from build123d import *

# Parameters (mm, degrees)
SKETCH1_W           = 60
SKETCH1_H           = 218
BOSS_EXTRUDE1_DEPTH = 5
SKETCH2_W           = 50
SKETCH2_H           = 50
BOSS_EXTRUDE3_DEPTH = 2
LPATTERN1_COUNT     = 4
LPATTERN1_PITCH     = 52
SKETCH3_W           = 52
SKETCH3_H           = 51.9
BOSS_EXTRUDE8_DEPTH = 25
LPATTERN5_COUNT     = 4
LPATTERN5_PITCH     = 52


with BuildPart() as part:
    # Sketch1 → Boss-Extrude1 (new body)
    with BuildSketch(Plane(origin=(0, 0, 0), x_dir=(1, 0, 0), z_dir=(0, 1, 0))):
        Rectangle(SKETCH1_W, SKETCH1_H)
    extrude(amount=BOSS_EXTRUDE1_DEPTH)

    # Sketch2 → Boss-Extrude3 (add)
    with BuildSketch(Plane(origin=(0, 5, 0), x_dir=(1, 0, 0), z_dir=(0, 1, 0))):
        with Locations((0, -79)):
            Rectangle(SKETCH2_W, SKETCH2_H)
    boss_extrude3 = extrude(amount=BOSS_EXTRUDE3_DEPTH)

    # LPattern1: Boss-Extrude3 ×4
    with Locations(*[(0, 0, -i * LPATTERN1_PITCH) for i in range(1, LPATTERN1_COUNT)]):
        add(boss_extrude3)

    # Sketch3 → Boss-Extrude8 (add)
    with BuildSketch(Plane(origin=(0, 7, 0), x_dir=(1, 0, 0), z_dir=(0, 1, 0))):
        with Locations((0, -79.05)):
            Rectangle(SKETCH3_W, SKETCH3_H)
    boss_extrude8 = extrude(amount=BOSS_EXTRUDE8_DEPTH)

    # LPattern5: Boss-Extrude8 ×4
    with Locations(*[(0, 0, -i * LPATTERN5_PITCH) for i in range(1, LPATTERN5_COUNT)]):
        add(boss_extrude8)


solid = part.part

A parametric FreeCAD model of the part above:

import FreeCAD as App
import Part
import Sketcher
from FreeCAD import Vector

doc = App.newDocument("Part")
body = doc.addObject("PartDesign::Body", "Body")

sketch1 = doc.addObject("Sketcher::SketchObject", "Sketch")
body.addObject(sketch1)
sketch1.AttachmentSupport = (doc.XZ_Plane, [""])
sketch1.MapMode = "FlatFace"
sketch1.addGeometry(Part.LineSegment(Vector(-30, -109, 0), Vector(-30, 109, 0)), False)
sketch1.addGeometry(Part.LineSegment(Vector(-30, 109, 0), Vector(30, 109, 0)), False)
sketch1.addGeometry(Part.LineSegment(Vector(30, 109, 0), Vector(30, -109, 0)), False)
sketch1.addGeometry(Part.LineSegment(Vector(30, -109, 0), Vector(-30, -109, 0)), False)
sketch1.addConstraint(Sketcher.Constraint("Coincident", 0, 2, 1, 1))
sketch1.addConstraint(Sketcher.Constraint("Coincident", 1, 2, 2, 1))
sketch1.addConstraint(Sketcher.Constraint("Coincident", 2, 2, 3, 1))
sketch1.addConstraint(Sketcher.Constraint("Coincident", 3, 2, 0, 1))
sketch1.addConstraint(Sketcher.Constraint("Vertical", 0))
sketch1.addConstraint(Sketcher.Constraint("Horizontal", 1))
sketch1.addConstraint(Sketcher.Constraint("Vertical", 2))
sketch1.addConstraint(Sketcher.Constraint("Horizontal", 3))
sketch1.addConstraint(Sketcher.Constraint("Symmetric", 0, 2, 2, 2, -1, 1))
sketch1.addConstraint(Sketcher.Constraint("DistanceX", 1, 1, 1, 2, 60.0))
sketch1.addConstraint(Sketcher.Constraint("DistanceY", 0, 1, 0, 2, 218.0))
pad1 = doc.addObject("PartDesign::Pad", "Pad")
body.addObject(pad1)
pad1.Profile = sketch1
pad1.Length = 5
pad1.Reversed = True

sketch2 = doc.addObject("Sketcher::SketchObject", "Sketch001")
body.addObject(sketch2)
sketch2.AttachmentSupport = (doc.XZ_Plane, [""])
sketch2.MapMode = "FlatFace"
sketch2.AttachmentOffset = App.Placement(Vector(0, 0, -5), App.Rotation())
sketch2.addGeometry(Part.LineSegment(Vector(-25, 54, 0), Vector(-25, 104, 0)), False)
sketch2.addGeometry(Part.LineSegment(Vector(-25, 104, 0), Vector(25, 104, 0)), False)
sketch2.addGeometry(Part.LineSegment(Vector(25, 104, 0), Vector(25, 54, 0)), False)
sketch2.addGeometry(Part.LineSegment(Vector(25, 54, 0), Vector(-25, 54, 0)), False)
sketch2.addConstraint(Sketcher.Constraint("Coincident", 0, 2, 1, 1))
sketch2.addConstraint(Sketcher.Constraint("Coincident", 1, 2, 2, 1))
sketch2.addConstraint(Sketcher.Constraint("Coincident", 2, 2, 3, 1))
sketch2.addConstraint(Sketcher.Constraint("Coincident", 3, 2, 0, 1))
sketch2.addConstraint(Sketcher.Constraint("Vertical", 0))
sketch2.addConstraint(Sketcher.Constraint("Horizontal", 1))
sketch2.addConstraint(Sketcher.Constraint("Vertical", 2))
sketch2.addConstraint(Sketcher.Constraint("Horizontal", 3))
sketch2.addConstraint(Sketcher.Constraint("Equal", 3, 0))
sketch2.addConstraint(Sketcher.Constraint("DistanceX", 1, 1, 1, 2, 50.0))
sketch2.addConstraint(Sketcher.Constraint("DistanceX", 0, 2, -1, 1, 25.0))
sketch2.addConstraint(Sketcher.Constraint("DistanceY", -1, 1, 0, 2, 104.0))
pad2 = doc.addObject("PartDesign::Pad", "Pad001")
body.addObject(pad2)
pad2.Profile = sketch2
pad2.Length = 2
pad2.Reversed = True
doc.recompute()

linearpattern = doc.addObject("PartDesign::LinearPattern", "LinearPattern")
body.addObject(linearpattern)
linearpattern.Originals = [pad2]
linearpattern.Direction = (doc.Z_Axis, [""])
linearpattern.Mode = "offset"
linearpattern.Offset = 52
linearpattern.Occurrences = 4
linearpattern.Reversed = True
body.Tip = linearpattern

sketch3 = doc.addObject("Sketcher::SketchObject", "Sketch002")
body.addObject(sketch3)
sketch3.AttachmentSupport = (doc.XZ_Plane, [""])
sketch3.MapMode = "FlatFace"
sketch3.AttachmentOffset = App.Placement(Vector(0, 0, -7), App.Rotation())
sketch3.addGeometry(Part.LineSegment(Vector(-26, 53, 0), Vector(-26, 105, 0)), False)
sketch3.addGeometry(Part.LineSegment(Vector(-26, 105, 0), Vector(26, 105, 0)), False)
sketch3.addGeometry(Part.LineSegment(Vector(26, 105, 0), Vector(26, 53, 0)), False)
sketch3.addGeometry(Part.LineSegment(Vector(26, 53, 0), Vector(-26, 53, 0)), False)
sketch3.addConstraint(Sketcher.Constraint("Coincident", 0, 2, 1, 1))
sketch3.addConstraint(Sketcher.Constraint("Coincident", 1, 2, 2, 1))
sketch3.addConstraint(Sketcher.Constraint("Coincident", 2, 2, 3, 1))
sketch3.addConstraint(Sketcher.Constraint("Coincident", 3, 2, 0, 1))
sketch3.addConstraint(Sketcher.Constraint("Vertical", 0))
sketch3.addConstraint(Sketcher.Constraint("Horizontal", 1))
sketch3.addConstraint(Sketcher.Constraint("Vertical", 2))
sketch3.addConstraint(Sketcher.Constraint("Horizontal", 3))
sketch3.addConstraint(Sketcher.Constraint("DistanceX", 1, 1, 1, 2, 52.0))
sketch3.addConstraint(Sketcher.Constraint("DistanceY", 0, 1, 0, 2, 51.9))
sketch3.addConstraint(Sketcher.Constraint("DistanceX", 0, 2, -1, 1, 26.0))
sketch3.addConstraint(Sketcher.Constraint("DistanceY", -1, 1, 0, 2, 105.0))
pad3 = doc.addObject("PartDesign::Pad", "Pad002")
body.addObject(pad3)
pad3.Profile = sketch3
pad3.Length = 25
pad3.Reversed = True
doc.recompute()

linearpattern2 = doc.addObject("PartDesign::LinearPattern", "LinearPattern001")
body.addObject(linearpattern2)
linearpattern2.Originals = [pad3]
linearpattern2.Direction = (doc.Z_Axis, [""])
linearpattern2.Mode = "offset"
linearpattern2.Offset = 52
linearpattern2.Occurrences = 4
linearpattern2.Reversed = True
body.Tip = linearpattern2

doc.recompute()
